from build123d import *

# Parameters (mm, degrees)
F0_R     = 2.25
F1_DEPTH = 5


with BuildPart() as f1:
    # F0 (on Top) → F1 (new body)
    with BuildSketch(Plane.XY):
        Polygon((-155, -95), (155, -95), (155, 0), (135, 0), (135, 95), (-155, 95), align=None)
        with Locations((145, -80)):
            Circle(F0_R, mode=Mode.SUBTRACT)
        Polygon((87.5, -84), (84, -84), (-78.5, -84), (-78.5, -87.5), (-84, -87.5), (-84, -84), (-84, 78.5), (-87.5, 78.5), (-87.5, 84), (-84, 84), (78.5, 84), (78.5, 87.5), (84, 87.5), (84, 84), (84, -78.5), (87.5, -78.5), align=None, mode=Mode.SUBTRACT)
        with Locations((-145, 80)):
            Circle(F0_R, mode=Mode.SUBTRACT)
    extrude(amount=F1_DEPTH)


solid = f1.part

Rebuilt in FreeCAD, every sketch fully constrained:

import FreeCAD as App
import Part
import Sketcher
Q = App.Units.Quantity


def add_polygon(sketch, points):
    """Adds a closed chain of lines whose ends are joined by coincident constraints."""
    first, n = sketch.GeometryCount, len(points)
    for a, b in zip(points, points[1:] + points[:1]):
        sketch.addGeometry(Part.LineSegment(App.Vector(*a, 0), App.Vector(*b, 0)), False)
    for i in range(n):
        sketch.addConstraint(Sketcher.Constraint("Coincident", first + i, 2, first + (i + 1) % n, 1))

doc = App.newDocument("Part")
params = doc.addObject("Spreadsheet::Sheet", "Params")
for row, (alias, value) in enumerate([
    ("sketch1_diameter", "4.5 mm"),
    ("sketch1_width", "310 mm"),
    ("sketch1_width2", "20 mm"),
    ("sketch1_width3", "166 mm"),
    ("sketch1_height", "95 mm"),
    ("pad1_length", "5 mm"),
], start=1):
    params.set(f"A{row}", alias)
    params.set(f"B{row}", "=" + value)
    params.setAlias(f"B{row}", alias)

body = doc.addObject("PartDesign::Body", "Body")

sketch1 = doc.addObject("Sketcher::SketchObject", "Sketch")
body.addObject(sketch1)
sketch1.AttachmentSupport = (doc.XY_Plane, [""])
sketch1.MapMode = "FlatFace"
add_polygon(sketch1, [(-155, -95), (155, -95), (155, 0), (135, 0), (135, 95), (-155, 95)])
sketch1.addGeometry(Part.Circle(App.Vector(145, -80, 0), App.Vector(0, 0, 1), 2.2), False)
sketch1.addGeometry(Part.Circle(App.Vector(-145, 80, 0), App.Vector(0, 0, 1), 2.2), False)
add_polygon(sketch1, [(87.5, -78.5), (87.5, -84), (-78.5, -84), (-78.5, -87.5), (-84, -87.5), (-84, 78.5), (-87.5, 78.5), (-87.5, 84), (78.5, 84), (78.5, 87.5), (84, 87.5), (84, -78.5)])
sketch1.addConstraint([
    Sketcher.Constraint("Horizontal", 0),
    Sketcher.Constraint("Vertical", 1),
    Sketcher.Constraint("Horizontal", 2),
    Sketcher.Constraint("Vertical", 3),
    Sketcher.Constraint("Horizontal", 4),
    Sketcher.Constraint("Vertical", 5),
    Sketcher.Constraint("Vertical", 8),
    Sketcher.Constraint("Horizontal", 9),
    Sketcher.Constraint("Vertical", 10),
    Sketcher.Constraint("Horizontal", 11),
    Sketcher.Constraint("Vertical", 12),
    Sketcher.Constraint("Horizontal", 13),
    Sketcher.Constraint("Vertical", 14),
    Sketcher.Constraint("Horizontal", 15),
    Sketcher.Constraint("Vertical", 16),
    Sketcher.Constraint("Horizontal", 17),
    Sketcher.Constraint("Vertical", 18),
    Sketcher.Constraint("Horizontal", 19),
    Sketcher.Constraint("Equal", 6, 7),
    Sketcher.Constraint("Symmetric", 6, 3, 7, 3, -1, 1),
    Sketcher.Constraint("Symmetric", 0, 2, 4, 2, -1, 1),
    Sketcher.Constraint("Symmetric", 8, 2, 14, 2, -1, 1),
    Sketcher.Constraint("Symmetric", 10, 2, 16, 2, -1, 1),
    Sketcher.Constraint("Symmetric", 12, 2, 18, 2, -1, 1),
    Sketcher.Constraint("PointOnObject", 1, 2, -1),
    Sketcher.Constraint("Equal", 17, 8),
    Sketcher.Constraint("Equal", 19, 10),
    Sketcher.Constraint("Equal", 15, 12),
    Sketcher.Constraint("Diameter", 6, Q("4.5 mm")),
    Sketcher.Constraint("DistanceX", 0, 1, 0, 2, Q("310 mm")),
    Sketcher.Constraint("DistanceX", 2, 2, 2, 1, Q("20 mm")),
    Sketcher.Constraint("DistanceX", 9, 2, 9, 1, Q("166 mm")),
    Sketcher.Constraint("DistanceY", 1, 1, 1, 2, Q("95 mm")),
    Sketcher.Constraint("DistanceX", 11, 2, 11, 1, Q("5.5 mm")),
    Sketcher.Constraint("DistanceX", 13, 2, 13, 1, Q("3.5 mm")),
    Sketcher.Constraint("DistanceX", -1, 1, 6, 3, Q("145 mm")),
    Sketcher.Constraint("DistanceY", 6, 3, -1, 1, Q("80 mm")),
])
sketch1.setExpression("Constraints[46]", "Params.sketch1_diameter")
sketch1.setExpression("Constraints[47]", "Params.sketch1_width")
sketch1.setExpression("Constraints[48]", "Params.sketch1_width2")
sketch1.setExpression("Constraints[49]", "Params.sketch1_width3")
sketch1.setExpression("Constraints[50]", "Params.sketch1_height")
pad1 = doc.addObject("PartDesign::Pad", "Pad")
body.addObject(pad1)
pad1.Profile = sketch1
pad1.setExpression("Length", "Params.pad1_length")

doc.recompute()
